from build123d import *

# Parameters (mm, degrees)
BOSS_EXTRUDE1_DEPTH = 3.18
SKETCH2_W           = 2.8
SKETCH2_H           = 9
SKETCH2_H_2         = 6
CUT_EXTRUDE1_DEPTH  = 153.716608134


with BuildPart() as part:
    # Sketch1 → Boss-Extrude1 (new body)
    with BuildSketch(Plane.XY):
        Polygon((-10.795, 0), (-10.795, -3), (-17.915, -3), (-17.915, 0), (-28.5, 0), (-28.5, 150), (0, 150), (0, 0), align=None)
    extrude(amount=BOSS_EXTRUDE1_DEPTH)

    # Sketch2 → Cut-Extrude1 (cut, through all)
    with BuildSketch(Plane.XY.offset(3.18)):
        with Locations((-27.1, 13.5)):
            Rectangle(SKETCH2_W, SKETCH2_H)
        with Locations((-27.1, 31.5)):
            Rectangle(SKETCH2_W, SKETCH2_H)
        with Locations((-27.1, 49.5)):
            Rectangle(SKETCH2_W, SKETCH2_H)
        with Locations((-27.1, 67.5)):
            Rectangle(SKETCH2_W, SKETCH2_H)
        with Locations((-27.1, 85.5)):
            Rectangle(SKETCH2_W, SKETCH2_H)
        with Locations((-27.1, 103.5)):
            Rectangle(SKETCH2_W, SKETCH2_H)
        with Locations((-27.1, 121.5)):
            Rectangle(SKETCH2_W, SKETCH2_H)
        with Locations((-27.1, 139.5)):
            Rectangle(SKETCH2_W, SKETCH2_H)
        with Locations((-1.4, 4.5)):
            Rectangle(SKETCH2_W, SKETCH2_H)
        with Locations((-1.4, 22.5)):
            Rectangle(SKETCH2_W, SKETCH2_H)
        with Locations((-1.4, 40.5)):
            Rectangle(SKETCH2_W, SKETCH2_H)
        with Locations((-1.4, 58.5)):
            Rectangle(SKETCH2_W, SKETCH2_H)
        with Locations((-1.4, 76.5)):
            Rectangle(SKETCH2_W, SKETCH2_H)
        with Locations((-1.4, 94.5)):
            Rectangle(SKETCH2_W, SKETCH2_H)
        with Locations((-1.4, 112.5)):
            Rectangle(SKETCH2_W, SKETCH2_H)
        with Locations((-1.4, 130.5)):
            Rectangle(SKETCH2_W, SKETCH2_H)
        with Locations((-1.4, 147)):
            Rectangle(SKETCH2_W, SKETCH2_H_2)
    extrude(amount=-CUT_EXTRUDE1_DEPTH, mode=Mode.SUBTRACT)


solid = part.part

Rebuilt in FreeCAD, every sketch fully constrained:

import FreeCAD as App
import Part
import Sketcher

V = App.Vector
Q = App.Units.Quantity

doc = App.newDocument("Part")
body = doc.addObject("PartDesign::Body", "Body")

sketch1 = doc.addObject("Sketcher::SketchObject", "Sketch")
body.addObject(sketch1)
sketch1.AttachmentSupport = (doc.XY_Plane, [""])
sketch1.MapMode = "FlatFace"
sketch1.addGeometry([
    Part.LineSegment(V(-10.8, -3, 0), V(-10.8, 0, 0)),
    Part.LineSegment(V(-10.8, 0, 0), V(0, 0, 0)),
    Part.LineSegment(V(0, 0, 0), V(0, 150, 0)),
    Part.LineSegment(V(0, 150, 0), V(-28.5, 150, 0)),
    Part.LineSegment(V(-28.5, 150, 0), V(-28.5, 0, 0)),
    Part.LineSegment(V(-28.5, 0, 0), V(-17.9, 0, 0)),
    Part.LineSegment(V(-17.9, 0, 0), V(-17.9, -3, 0)),
    Part.LineSegment(V(-17.9, -3, 0), V(-10.8, -3, 0)),
], False)
sketch1.addConstraint([
    Sketcher.Constraint("Coincident", 0, 2, 1, 1),
    Sketcher.Constraint("Coincident", 1, 2, 2, 1),
    Sketcher.Constraint("Coincident", 2, 2, 3, 1),
    Sketcher.Constraint("Coincident", 3, 2, 4, 1),
    Sketcher.Constraint("Coincident", 4, 2, 5, 1),
    Sketcher.Constraint("Coincident", 5, 2, 6, 1),
    Sketcher.Constraint("Coincident", 6, 2, 7, 1),
    Sketcher.Constraint("Coincident", 7, 2, 0, 1),
    Sketcher.Constraint("Vertical", 0),
    Sketcher.Constraint("Horizontal", 1),
    Sketcher.Constraint("Vertical", 2),
    Sketcher.Constraint("Horizontal", 3),
    Sketcher.Constraint("Vertical", 4),
    Sketcher.Constraint("Horizontal", 5),
    Sketcher.Constraint("Vertical", 6),
    Sketcher.Constraint("Horizontal", 7),
    Sketcher.Constraint("Coincident", 1, 2, -1, 1),
    Sketcher.Constraint("PointOnObject", 4, 2, -1),
    Sketcher.Constraint("DistanceY", 0, 1, 0, 2, Q("3 mm")),
    Sketcher.Constraint("DistanceY", 2, 1, 2, 2, Q("150 mm")),
    Sketcher.Constraint("DistanceX", 3, 2, 3, 1, Q("28.5 mm")),
    Sketcher.Constraint("DistanceX", 7, 1, 7, 2, Q("7.12 mm")),
    Sketcher.Constraint("DistanceX", 1, 1, 1, 2, Q("10.795 mm")),
])
pad1 = doc.addObject("PartDesign::Pad", "Pad")
body.addObject(pad1)
pad1.Profile = sketch1
pad1.Length = 3.18

sketch2 = doc.addObject("Sketcher::SketchObject", "Sketch001")
body.addObject(sketch2)
sketch2.AttachmentSupport = (doc.XY_Plane, [""])
sketch2.MapMode = "FlatFace"
sketch2.AttachmentOffset = App.Placement(V(0, 0, 3.18), App.Rotation())
sketch2.addGeometry([
    Part.LineSegment(V(-28.5, 18, 0), V(-28.5, 9, 0)),
    Part.LineSegment(V(-28.5, 9, 0), V(-25.7, 9, 0)),
    Part.LineSegment(V(-25.7, 9, 0), V(-25.7, 18, 0)),
    Part.LineSegment(V(-25.7, 18, 0), V(-28.5, 18, 0)),
    Part.LineSegment(V(-28.5, 36, 0), V(-28.5, 27, 0)),
    Part.LineSegment(V(-28.5, 27, 0), V(-25.7, 27, 0)),
    Part.LineSegment(V(-25.7, 27, 0), V(-25.7, 36, 0)),
    Part.LineSegment(V(-25.7, 36, 0), V(-28.5, 36, 0)),
    Part.LineSegment(V(-28.5, 54, 0), V(-28.5, 45, 0)),
    Part.LineSegment(V(-28.5, 45, 0), V(-25.7, 45, 0)),
    Part.LineSegment(V(-25.7, 45, 0), V(-25.7, 54, 0)),
    Part.LineSegment(V(-25.7, 54, 0), V(-28.5, 54, 0)),
    Part.LineSegment(V(-28.5, 72, 0), V(-28.5, 63, 0)),
    Part.LineSegment(V(-28.5, 63, 0), V(-25.7, 63, 0)),
    Part.LineSegment(V(-25.7, 63, 0), V(-25.7, 72, 0)),
    Part.LineSegment(V(-25.7, 72, 0), V(-28.5, 72, 0)),
    Part.LineSegment(V(-28.5, 90, 0), V(-28.5, 81, 0)),
    Part.LineSegment(V(-28.5, 81, 0), V(-25.7, 81, 0)),
    Part.LineSegment(V(-25.7, 81, 0), V(-25.7, 90, 0)),
    Part.LineSegment(V(-25.7, 90, 0), V(-28.5, 90, 0)),
    Part.LineSegment(V(-28.5, 108, 0), V(-28.5, 99, 0)),
    Part.LineSegment(V(-28.5, 99, 0), V(-25.7, 99, 0)),
    Part.LineSegment(V(-25.7, 99, 0), V(-25.7, 108, 0)),
    Part.LineSegment(V(-25.7, 108, 0), V(-28.5, 108, 0)),
    Part.LineSegment(V(-28.5, 126, 0), V(-28.5, 117, 0)),
    Part.LineSegment(V(-28.5, 117, 0), V(-25.7, 117, 0)),
    Part.LineSegment(V(-25.7, 117, 0), V(-25.7, 126, 0)),
    Part.LineSegment(V(-25.7, 126, 0), V(-28.5, 126, 0)),
    Part.LineSegment(V(-28.5, 144, 0), V(-28.5, 135, 0)),
    Part.LineSegment(V(-28.5, 135, 0), V(-25.7, 135, 0)),
    Part.LineSegment(V(-25.7, 135, 0), V(-25.7, 144, 0)),
    Part.LineSegment(V(-25.7, 144, 0), V(-28.5, 144, 0)),
    Part.LineSegment(V(-2.8, 9, 0), V(-2.8, 0, 0)),
    Part.LineSegment(V(-2.8, 0, 0), V(0, 0, 0)),
    Part.LineSegment(V(0, 0, 0), V(0, 9, 0)),
    Part.LineSegment(V(0, 9, 0), V(-2.8, 9, 0)),
    Part.LineSegment(V(-2.8, 27, 0), V(-2.8, 18, 0)),
    Part.LineSegment(V(-2.8, 18, 0), V(0, 18, 0)),
    Part.LineSegment(V(0, 18, 0), V(0, 27, 0)),
    Part.LineSegment(V(0, 27, 0), V(-2.8, 27, 0)),
    Part.LineSegment(V(-2.8, 45, 0), V(-2.8, 36, 0)),
    Part.LineSegment(V(-2.8, 36, 0), V(0, 36, 0)),
    Part.LineSegment(V(0, 36, 0), V(0, 45, 0)),
    Part.LineSegment(V(0, 45, 0), V(-2.8, 45, 0)),
    Part.LineSegment(V(-2.8, 63, 0), V(-2.8, 54, 0)),
    Part.LineSegment(V(-2.8, 54, 0), V(0, 54, 0)),
    Part.LineSegment(V(0, 54, 0), V(0, 63, 0)),
    Part.LineSegment(V(0, 63, 0), V(-2.8, 63, 0)),
    Part.LineSegment(V(-2.8, 81, 0), V(-2.8, 72, 0)),
    Part.LineSegment(V(-2.8, 72, 0), V(0, 72, 0)),
    Part.LineSegment(V(0, 72, 0), V(0, 81, 0)),
    Part.LineSegment(V(0, 81, 0), V(-2.8, 81, 0)),
    Part.LineSegment(V(-2.8, 99, 0), V(-2.8, 90, 0)),
    Part.LineSegment(V(-2.8, 90, 0), V(0, 90, 0)),
    Part.LineSegment(V(0, 90, 0), V(0, 99, 0)),
    Part.LineSegment(V(0, 99, 0), V(-2.8, 99, 0)),
    Part.LineSegment(V(-2.8, 117, 0), V(-2.8, 108, 0)),
    Part.LineSegment(V(-2.8, 108, 0), V(0, 108, 0)),
    Part.LineSegment(V(0, 108, 0), V(0, 117, 0)),
    Part.LineSegment(V(0, 117, 0), V(-2.8, 117, 0)),
    Part.LineSegment(V(-2.8, 135, 0), V(-2.8, 126, 0)),
    Part.LineSegment(V(-2.8, 126, 0), V(0, 126, 0)),
    Part.LineSegment(V(0, 126, 0), V(0, 135, 0)),
    Part.LineSegment(V(0, 135, 0), V(-2.8, 135, 0)),
    Part.LineSegment(V(-2.8, 150, 0), V(-2.8, 144, 0)),
    Part.LineSegment(V(-2.8, 144, 0), V(0, 144, 0)),
    Part.LineSegment(V(0, 144, 0), V(0, 150, 0)),
    Part.LineSegment(V(0, 150, 0), V(-2.8, 150, 0)),
], False)
sketch2.addConstraint([
    Sketcher.Constraint("Coincident", 0, 2, 1, 1),
    Sketcher.Constraint("Coincident", 1, 2, 2, 1),
    Sketcher.Constraint("Coincident", 2, 2, 3, 1),
    Sketcher.Constraint("Coincident", 3, 2, 0, 1),
    Sketcher.Constraint("Coincident", 4, 2, 5, 1),
    Sketcher.Constraint("Coincident", 5, 2, 6, 1),
    Sketcher.Constraint("Coincident", 6, 2, 7, 1),
    Sketcher.Constraint("Coincident", 7, 2, 4, 1),
    Sketcher.Constraint("Coincident", 8, 2, 9, 1),
    Sketcher.Constraint("Coincident", 9, 2, 10, 1),
    Sketcher.Constraint("Coincident", 10, 2, 11, 1),
    Sketcher.Constraint("Coincident", 11, 2, 8, 1),
    Sketcher.Constraint("Coincident", 12, 2, 13, 1),
    Sketcher.Constraint("Coincident", 13, 2, 14, 1),
    Sketcher.Constraint("Coincident", 14, 2, 15, 1),
    Sketcher.Constraint("Coincident", 15, 2, 12, 1),
    Sketcher.Constraint("Coincident", 16, 2, 17, 1),
    Sketcher.Constraint("Coincident", 17, 2, 18, 1),
    Sketcher.Constraint("Coincident", 18, 2, 19, 1),
    Sketcher.Constraint("Coincident", 19, 2, 16, 1),
    Sketcher.Constraint("Coincident", 20, 2, 21, 1),
    Sketcher.Constraint("Coincident", 21, 2, 22, 1),
    Sketcher.Constraint("Coincident", 22, 2, 23, 1),
    Sketcher.Constraint("Coincident", 23, 2, 20, 1),
    Sketcher.Constraint("Coincident", 24, 2, 25, 1),
    Sketcher.Constraint("Coincident", 25, 2, 26, 1),
    Sketcher.Constraint("Coincident", 26, 2, 27, 1),
    Sketcher.Constraint("Coincident", 27, 2, 24, 1),
    Sketcher.Constraint("Coincident", 28, 2, 29, 1),
    Sketcher.Constraint("Coincident", 29, 2, 30, 1),
    Sketcher.Constraint("Coincident", 30, 2, 31, 1),
    Sketcher.Constraint("Coincident", 31, 2, 28, 1),
    Sketcher.Constraint("Coincident", 32, 2, 33, 1),
    Sketcher.Constraint("Coincident", 33, 2, 34, 1),
    Sketcher.Constraint("Coincident", 34, 2, 35, 1),
    Sketcher.Constraint("Coincident", 35, 2, 32, 1),
    Sketcher.Constraint("Coincident", 36, 2, 37, 1),
    Sketcher.Constraint("Coincident", 37, 2, 38, 1),
    Sketcher.Constraint("Coincident", 38, 2, 39, 1),
    Sketcher.Constraint("Coincident", 39, 2, 36, 1),
    Sketcher.Constraint("Coincident", 40, 2, 41, 1),
    Sketcher.Constraint("Coincident", 41, 2, 42, 1),
    Sketcher.Constraint("Coincident", 42, 2, 43, 1),
    Sketcher.Constraint("Coincident", 43, 2, 40, 1),
    Sketcher.Constraint("Coincident", 44, 2, 45, 1),
    Sketcher.Constraint("Coincident", 45, 2, 46, 1),
    Sketcher.Constraint("Coincident", 46, 2, 47, 1),
    Sketcher.Constraint("Coincident", 47, 2, 44, 1),
    Sketcher.Constraint("Coincident", 48, 2, 49, 1),
    Sketcher.Constraint("Coincident", 49, 2, 50, 1),
    Sketcher.Constraint("Coincident", 50, 2, 51, 1),
    Sketcher.Constraint("Coincident", 51, 2, 48, 1),
    Sketcher.Constraint("Coincident", 52, 2, 53, 1),
    Sketcher.Constraint("Coincident", 53, 2, 54, 1),
    Sketcher.Constraint("Coincident", 54, 2, 55, 1),
    Sketcher.Constraint("Coincident", 55, 2, 52, 1),
    Sketcher.Constraint("Coincident", 56, 2, 57, 1),
    Sketcher.Constraint("Coincident", 57, 2, 58, 1),
    Sketcher.Constraint("Coincident", 58, 2, 59, 1),
    Sketcher.Constraint("Coincident", 59, 2, 56, 1),
    Sketcher.Constraint("Coincident", 60, 2, 61, 1),
    Sketcher.Constraint("Coincident", 61, 2, 62, 1),
    Sketcher.Constraint("Coincident", 62, 2, 63, 1),
    Sketcher.Constraint("Coincident", 63, 2, 60, 1),
    Sketcher.Constraint("Coincident", 64, 2, 65, 1),
    Sketcher.Constraint("Coincident", 65, 2, 66, 1),
    Sketcher.Constraint("Coincident", 66, 2, 67, 1),
    Sketcher.Constraint("Coincident", 67, 2, 64, 1),
    Sketcher.Constraint("Vertical", 0),
    Sketcher.Constraint("Horizontal", 1),
    Sketcher.Constraint("Vertical", 2),
    Sketcher.Constraint("Horizontal", 3),
    Sketcher.Constraint("Vertical", 4),
    Sketcher.Constraint("Horizontal", 5),
    Sketcher.Constraint("Vertical", 6),
    Sketcher.Constraint("Horizontal", 7),
    Sketcher.Constraint("Vertical", 8),
    Sketcher.Constraint("Horizontal", 9),
    Sketcher.Constraint("Vertical", 10),
    Sketcher.Constraint("Horizontal", 11),
    Sketcher.Constraint("Vertical", 12),
    Sketcher.Constraint("Horizontal", 13),
    Sketcher.Constraint("Vertical", 14),
    Sketcher.Constraint("Horizontal", 15),
    Sketcher.Constraint("Vertical", 16),
    Sketcher.Constraint("Horizontal", 17),
    Sketcher.Constraint("Vertical", 18),
    Sketcher.Constraint("Horizontal", 19),
    Sketcher.Constraint("Vertical", 20),
    Sketcher.Constraint("Horizontal", 21),
    Sketcher.Constraint("Vertical", 22),
    Sketcher.Constraint("Horizontal", 23),
    Sketcher.Constraint("Vertical", 24),
    Sketcher.Constraint("Horizontal", 25),
    Sketcher.Constraint("Vertical", 26),
    Sketcher.Constraint("Horizontal", 27),
    Sketcher.Constraint("Vertical", 28),
    Sketcher.Constraint("Horizontal", 29),
    Sketcher.Constraint("Vertical", 30),
    Sketcher.Constraint("Horizontal", 31),
    Sketcher.Constraint("Vertical", 32),
    Sketcher.Constraint("Horizontal", 33),
    Sketcher.Constraint("Vertical", 34),
    Sketcher.Constraint("Horizontal", 35),
    Sketcher.Constraint("Vertical", 36),
    Sketcher.Constraint("Horizontal", 37),
    Sketcher.Constraint("Vertical", 38),
    Sketcher.Constraint("Horizontal", 39),
    Sketcher.Constraint("Vertical", 40),
    Sketcher.Constraint("Horizontal", 41),
    Sketcher.Constraint("Vertical", 42),
    Sketcher.Constraint("Horizontal", 43),
    Sketcher.Constraint("Vertical", 44),
    Sketcher.Constraint("Horizontal", 45),
    Sketcher.Constraint("Vertical", 46),
    Sketcher.Constraint("Horizontal", 47),
    Sketcher.Constraint("Vertical", 48),
    Sketcher.Constraint("Horizontal", 49),
    Sketcher.Constraint("Vertical", 50),
    Sketcher.Constraint("Horizontal", 51),
    Sketcher.Constraint("Vertical", 52),
    Sketcher.Constraint("Horizontal", 53),
    Sketcher.Constraint("Vertical", 54),
    Sketcher.Constraint("Horizontal", 55),
    Sketcher.Constraint("Vertical", 56),
    Sketcher.Constraint("Horizontal", 57),
    Sketcher.Constraint("Vertical", 58),
    Sketcher.Constraint("Horizontal", 59),
    Sketcher.Constraint("Vertical", 60),
    Sketcher.Constraint("Horizontal", 61),
    Sketcher.Constraint("Vertical", 62),
    Sketcher.Constraint("Horizontal", 63),
    Sketcher.Constraint("Vertical", 64),
    Sketcher.Constraint("Horizontal", 65),
    Sketcher.Constraint("Vertical", 66),
    Sketcher.Constraint("Horizontal", 67),
    Sketcher.Constraint("Coincident", 33, 2, -1, 1),
    Sketcher.Constraint("PointOnObject", 37, 2, -2),
    Sketcher.Constraint("PointOnObject", 41, 2, -2),
    Sketcher.Constraint("PointOnObject", 45, 2, -2),
    Sketcher.Constraint("PointOnObject", 49, 2, -2),
    Sketcher.Constraint("PointOnObject", 53, 2, -2),
    Sketcher.Constraint("PointOnObject", 57, 2, -2),
    Sketcher.Constraint("PointOnObject", 61, 2, -2),
    Sketcher.Constraint("PointOnObject", 65, 2, -2),
    Sketcher.Constraint("Horizontal", 1, 2, 34, 2),
    Sketcher.Constraint("Horizontal", 3, 2, 36, 2),
    Sketcher.Constraint("Horizontal", 5, 2, 38, 2),
    Sketcher.Constraint("Horizontal", 7, 2, 40, 2),
    Sketcher.Constraint("Horizontal", 9, 2, 42, 2),
    Sketcher.Constraint("Horizontal", 11, 2, 44, 2),
    Sketcher.Constraint("Horizontal", 13, 2, 46, 2),
    Sketcher.Constraint("Horizontal", 15, 2, 48, 2),
    Sketcher.Constraint("Horizontal", 17, 2, 50, 2),
    Sketcher.Constraint("Horizontal", 19, 2, 52, 2),
    Sketcher.Constraint("Horizontal", 21, 2, 54, 2),
    Sketcher.Constraint("Horizontal", 23, 2, 56, 2),
    Sketcher.Constraint("Horizontal", 25, 2, 58, 2),
    Sketcher.Constraint("Horizontal", 27, 2, 60, 2),
    Sketcher.Constraint("Horizontal", 29, 2, 62, 2),
    Sketcher.Constraint("Horizontal", 31, 2, 64, 2),
    Sketcher.Constraint("Vertical", 3, 2, 4, 2),
    Sketcher.Constraint("Vertical", 2, 2, 5, 2),
    Sketcher.Constraint("Vertical", 7, 2, 8, 2),
    Sketcher.Constraint("Vertical", 6, 2, 9, 2),
    Sketcher.Constraint("Vertical", 11, 2, 12, 2),
    Sketcher.Constraint("Vertical", 10, 2, 13, 2),
    Sketcher.Constraint("Vertical", 15, 2, 16, 2),
    Sketcher.Constraint("Vertical", 14, 2, 17, 2),
    Sketcher.Constraint("Vertical", 19, 2, 20, 2),
    Sketcher.Constraint("Vertical", 18, 2, 21, 2),
    Sketcher.Constraint("Vertical", 23, 2, 24, 2),
    Sketcher.Constraint("Vertical", 22, 2, 25, 2),
    Sketcher.Constraint("Vertical", 27, 2, 28, 2),
    Sketcher.Constraint("Vertical", 26, 2, 29, 2),
    Sketcher.Constraint("Vertical", 35, 2, 36, 2),
    Sketcher.Constraint("Vertical", 39, 2, 40, 2),
    Sketcher.Constraint("Vertical", 43, 2, 44, 2),
    Sketcher.Constraint("Vertical", 47, 2, 48, 2),
    Sketcher.Constraint("Vertical", 51, 2, 52, 2),
    Sketcher.Constraint("Vertical", 55, 2, 56, 2),
    Sketcher.Constraint("Vertical", 59, 2, 60, 2),
    Sketcher.Constraint("Vertical", 63, 2, 64, 2),
    Sketcher.Constraint("Equal", 31, 33),
    Sketcher.Constraint("Equal", 2, 4),
    Sketcher.Constraint("Equal", 6, 8),
    Sketcher.Constraint("Equal", 10, 12),
    Sketcher.Constraint("Equal", 14, 16),
    Sketcher.Constraint("Equal", 18, 20),
    Sketcher.Constraint("Equal", 22, 24),
    Sketcher.Constraint("Equal", 26, 28),
    Sketcher.Constraint("Equal", 30, 32),
    Sketcher.Constraint("Equal", 34, 36),
    Sketcher.Constraint("Equal", 38, 40),
    Sketcher.Constraint("Equal", 42, 44),
    Sketcher.Constraint("Equal", 46, 48),
    Sketcher.Constraint("Equal", 50, 52),
    Sketcher.Constraint("Equal", 54, 56),
    Sketcher.Constraint("Equal", 58, 60),
    Sketcher.Constraint("DistanceY", 0, 2, 0, 1, Q("9 mm")),
    Sketcher.Constraint("DistanceY", 64, 2, 64, 1, Q("6 mm")),
    Sketcher.Constraint("DistanceX", 1, 1, 1, 2, Q("2.8 mm")),
    Sketcher.Constraint("DistanceX", 0, 2, -1, 1, Q("28.5 mm")),
])
pocket1 = doc.addObject("PartDesign::Pocket", "Pocket")
body.addObject(pocket1)
pocket1.Profile = sketch2
pocket1.Type = "ThroughAll"

doc.recompute()
